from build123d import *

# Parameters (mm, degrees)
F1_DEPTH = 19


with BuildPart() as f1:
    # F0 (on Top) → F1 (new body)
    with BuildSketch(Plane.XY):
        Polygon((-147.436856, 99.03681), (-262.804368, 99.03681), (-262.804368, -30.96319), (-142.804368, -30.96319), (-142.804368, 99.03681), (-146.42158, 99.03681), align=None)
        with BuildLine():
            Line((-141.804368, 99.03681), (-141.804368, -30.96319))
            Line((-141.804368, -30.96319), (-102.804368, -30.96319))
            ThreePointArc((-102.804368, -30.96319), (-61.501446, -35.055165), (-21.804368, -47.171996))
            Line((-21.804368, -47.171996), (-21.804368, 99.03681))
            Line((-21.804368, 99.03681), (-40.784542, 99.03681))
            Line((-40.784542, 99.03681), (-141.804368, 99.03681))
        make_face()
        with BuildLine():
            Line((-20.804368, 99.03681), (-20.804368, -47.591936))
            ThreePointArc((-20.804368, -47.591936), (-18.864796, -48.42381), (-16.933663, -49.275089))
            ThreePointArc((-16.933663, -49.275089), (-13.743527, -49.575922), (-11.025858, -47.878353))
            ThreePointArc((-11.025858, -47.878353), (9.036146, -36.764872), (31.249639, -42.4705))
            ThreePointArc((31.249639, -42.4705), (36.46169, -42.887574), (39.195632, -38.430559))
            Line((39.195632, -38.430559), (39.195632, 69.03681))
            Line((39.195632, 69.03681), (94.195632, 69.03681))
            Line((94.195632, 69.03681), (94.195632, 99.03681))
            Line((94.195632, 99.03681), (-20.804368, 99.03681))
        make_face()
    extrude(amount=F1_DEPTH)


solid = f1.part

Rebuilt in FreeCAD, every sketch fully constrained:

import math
import FreeCAD as App
import Part
import Sketcher
from FreeCAD import Vector
Q = App.Units.Quantity


def add_polygon(sketch, points):
    """Adds a closed chain of lines whose ends are joined by coincident constraints."""
    first, n = sketch.GeometryCount, len(points)
    for a, b in zip(points, points[1:] + points[:1]):
        sketch.addGeometry(Part.LineSegment(App.Vector(*a, 0), App.Vector(*b, 0)), False)
    for i in range(n):
        sketch.addConstraint(Sketcher.Constraint("Coincident", first + i, 2, first + (i + 1) % n, 1))

doc = App.newDocument("Part")
body = doc.addObject("PartDesign::Body", "Body")
body.AllowCompound = True

# Sketch on XY plane
sketch1 = body.newObject("Sketcher::SketchObject", "Sketch")
sketch1.AttachmentSupport = (doc.getObject("XY_Plane"), [""])
sketch1.MapMode = "FlatFace"
add_polygon(sketch1, [(-262.8, 99), (-262.8, -31), (-142.8, -31), (-142.8, 99)])  # lines 0-3
sketch1.addGeometry(Part.LineSegment(Vector(-141.8, 99, 0), Vector(-141.8, -31, 0)), False)  # 4
sketch1.addGeometry(Part.LineSegment(Vector(-141.8, -31, 0), Vector(-102.8, -31, 0)), False)  # 5
sketch1.addGeometry(Part.ArcOfCircle(Part.Circle(Vector(-102.8, -241.5, 0), Vector(0, 0, 1), 210.5), math.radians(67), math.radians(90)), False)  # 6
sketch1.addGeometry(Part.LineSegment(Vector(-21.8, -47.2, 0), Vector(-21.8, 99, 0)), False)  # 7
sketch1.addGeometry(Part.LineSegment(Vector(-21.8, 99, 0), Vector(-141.8, 99, 0)), False)  # 8
sketch1.addGeometry(Part.LineSegment(Vector(-20.8, 99, 0), Vector(-20.8, -47.6, 0)), False)  # 9
sketch1.addGeometry(Part.ArcOfCircle(Part.Circle(Vector(-102.8, -241.4, 0), Vector(0, 0, 1), 210.5), math.radians(65.92), math.radians(67.07)), False)  # 10
sketch1.addGeometry(Part.ArcOfCircle(Part.Circle(Vector(-14.9, -44.7, 0), Vector(0, 0, 1), 5), math.radians(-114), math.radians(-39)), False)  # 11
sketch1.addGeometry(Part.ArcOfCircle(Part.Circle(Vector(13, -67.5, 0), Vector(0, 0, 1), 31), math.radians(54), math.radians(141)), False)  # 12
sketch1.addGeometry(Part.ArcOfCircle(Part.Circle(Vector(34.2, -38.4, 0), Vector(0, 0, 1), 5), math.radians(-126), math.radians(0)), False)  # 13
sketch1.addGeometry(Part.LineSegment(Vector(39.2, -38.4, 0), Vector(39.2, 69, 0)), False)  # 14
sketch1.addGeometry(Part.LineSegment(Vector(39.2, 69, 0), Vector(94.2, 69, 0)), False)  # 15
sketch1.addGeometry(Part.LineSegment(Vector(94.2, 69, 0), Vector(94.2, 99, 0)), False)  # 16
sketch1.addGeometry(Part.LineSegment(Vector(94.2, 99, 0), Vector(-20.8, 99, 0)), False)  # 17
sketch1.addConstraint([
    Sketcher.Constraint("Coincident", 4, 2, 5, 1),
    Sketcher.Constraint("Tangent", 5, 2, 6, 2),
    Sketcher.Constraint("Coincident", 6, 1, 7, 1),
    Sketcher.Constraint("Coincident", 7, 2, 8, 1),
    Sketcher.Constraint("Coincident", 8, 2, 4, 1),
    Sketcher.Constraint("Coincident", 9, 2, 10, 2),
    Sketcher.Constraint("Tangent", 10, 1, 11, 1),
    Sketcher.Constraint("Tangent", 11, 2, 12, 2),
    Sketcher.Constraint("Tangent", 12, 1, 13, 1),
    Sketcher.Constraint("Tangent", 13, 2, 14, 1),
    Sketcher.Constraint("Coincident", 14, 2, 15, 1),
    Sketcher.Constraint("Coincident", 15, 2, 16, 1),
    Sketcher.Constraint("Coincident", 16, 2, 17, 1),
    Sketcher.Constraint("Coincident", 17, 2, 9, 1),
    Sketcher.Constraint("Vertical", 0),
    Sketcher.Constraint("Horizontal", 1),
    Sketcher.Constraint("Vertical", 2),
    Sketcher.Constraint("Horizontal", 3),
    Sketcher.Constraint("Vertical", 4),
    Sketcher.Constraint("Horizontal", 5),
    Sketcher.Constraint("Vertical", 7),
    Sketcher.Constraint("Horizontal", 8),
    Sketcher.Constraint("Vertical", 9),
    Sketcher.Constraint("Vertical", 14),
    Sketcher.Constraint("Horizontal", 15),
    Sketcher.Constraint("Vertical", 16),
    Sketcher.Constraint("Horizontal", 17),
    Sketcher.Constraint("Equal", 11, 13),
    Sketcher.Constraint("Horizontal", 1, 2, 4, 2),
    Sketcher.Constraint("Horizontal", 3, 2, 7, 2),
    Sketcher.Constraint("Horizontal", 8, 2, 16, 2),
    Sketcher.Constraint("Equal", 3, 8),
    Sketcher.Constraint("Radius", 11, Q("5 mm")),
    Sketcher.Constraint("DistanceX", 1, 1, 1, 2, Q("120 mm")),
    Sketcher.Constraint("DistanceX", 5, 1, 5, 2, Q("39 mm")),
    Sketcher.Constraint("DistanceX", 15, 1, 15, 2, Q("55 mm")),
    Sketcher.Constraint("DistanceX", 17, 2, 17, 1, Q("115 mm")),
    Sketcher.Constraint("DistanceY", 0, 2, 0, 1, Q("130 mm")),
    Sketcher.Constraint("DistanceY", 16, 1, 16, 2, Q("30 mm")),
    Sketcher.Constraint("DistanceX", 6, 3, 13, 3, Q("136.999998 mm")),
    Sketcher.Constraint("DistanceX", 0, 2, 6, 3, Q("160.000002 mm")),
    Sketcher.Constraint("Radius", 6, Q("210.494378 mm")),
    Sketcher.Constraint("Radius", 12, Q("31.020791 mm")),
    Sketcher.Constraint("Radius", 10, Q("210.483326 mm")),
    Sketcher.Constraint("DistanceY", 14, 1, 14, 2, Q("107.467369 mm")),
    Sketcher.Constraint("DistanceY", 12, 1, -1, 1, Q("42.4705 mm")),
    Sketcher.Constraint("DistanceX", 6, 3, 10, 3, Q("0.004399 mm")),
    Sketcher.Constraint("DistanceX", 10, 3, 12, 3, Q("115.772198 mm")),
    Sketcher.Constraint("DistanceY", 9, 2, 9, 1, Q("146.628746 mm")),
    Sketcher.Constraint("DistanceX", -1, 1, 12, 3, Q("12.972231 mm")),
])
pad1 = body.newObject("PartDesign::Pad", "Pad")
pad1.Profile = sketch1
pad1.Length = 19

doc.recompute()
